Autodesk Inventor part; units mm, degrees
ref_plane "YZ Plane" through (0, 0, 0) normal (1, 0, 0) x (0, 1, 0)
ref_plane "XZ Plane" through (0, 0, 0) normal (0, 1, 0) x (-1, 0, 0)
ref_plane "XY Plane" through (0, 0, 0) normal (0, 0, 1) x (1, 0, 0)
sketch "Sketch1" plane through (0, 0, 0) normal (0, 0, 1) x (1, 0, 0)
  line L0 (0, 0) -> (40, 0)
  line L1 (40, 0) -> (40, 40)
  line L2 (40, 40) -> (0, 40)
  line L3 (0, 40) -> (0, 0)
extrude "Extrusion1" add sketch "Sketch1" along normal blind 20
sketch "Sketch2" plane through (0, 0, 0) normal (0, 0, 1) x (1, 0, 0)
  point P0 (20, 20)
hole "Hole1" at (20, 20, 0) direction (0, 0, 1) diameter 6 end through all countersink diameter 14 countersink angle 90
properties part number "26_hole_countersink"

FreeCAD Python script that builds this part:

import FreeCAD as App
import Part
import Sketcher

doc = App.newDocument("Part")
params = doc.addObject("Spreadsheet::Sheet", "Params")
for row, (alias, value) in enumerate([
    ("sketch1_width", "40 mm"),
    ("pad1_length", "20 mm"),
    ("sketch2_diameter", "6 mm"),
    ("hole_diameter", "6 mm"),
    ("hole_csink_diameter", "14 mm"),
], start=1):
    params.set(f"A{row}", alias)
    params.set(f"B{row}", "=" + value)
    params.setAlias(f"B{row}", alias)

body = doc.addObject("PartDesign::Body", "Body")

# Sketch on XY plane
sketch1 = body.newObject("Sketcher::SketchObject", "Sketch")
sketch1.AttachmentSupport = (doc.getObject("XY_Plane"), [""])
sketch1.MapMode = "FlatFace"
sketch1.addGeometry(Part.LineSegment(App.Vector(0, 40, 0), App.Vector(0, 0, 0)), False)
sketch1.addGeometry(Part.LineSegment(App.Vector(0, 0, 0), App.Vector(40, 0, 0)), False)
sketch1.addGeometry(Part.LineSegment(App.Vector(40, 0, 0), App.Vector(40, 40, 0)), False)
sketch1.addGeometry(Part.LineSegment(App.Vector(40, 40, 0), App.Vector(0, 40, 0)), False)
sketch1.addConstraint(Sketcher.Constraint("Coincident", 0, 2, 1, 1))
sketch1.addConstraint(Sketcher.Constraint("Coincident", 1, 2, 2, 1))
sketch1.addConstraint(Sketcher.Constraint("Coincident", 2, 2, 3, 1))
sketch1.addConstraint(Sketcher.Constraint("Coincident", 3, 2, 0, 1))
sketch1.addConstraint(Sketcher.Constraint("Vertical", 0))
sketch1.addConstraint(Sketcher.Constraint("Horizontal", 1))
sketch1.addConstraint(Sketcher.Constraint("Vertical", 2))
sketch1.addConstraint(Sketcher.Constraint("Horizontal", 3))
sketch1.addConstraint(Sketcher.Constraint("Coincident", 0, 2, -1, 1))
sketch1.addConstraint(Sketcher.Constraint("Equal", 3, 0))
sketch1.addConstraint(Sketcher.Constraint("DistanceX", 1, 1, 1, 2, 40.0))
sketch1.setExpression("Constraints[10]", "Params.sketch1_width")
pad1 = body.newObject("PartDesign::Pad", "Pad")
pad1.Profile = sketch1
pad1.setExpression("Length", "Params.pad1_length")

# Sketch on XY plane
sketch2 = body.newObject("Sketcher::SketchObject", "Sketch001")
sketch2.AttachmentSupport = (doc.getObject("XY_Plane"), [""])
sketch2.MapMode = "FlatFace"
sketch2.addGeometry(Part.Circle(App.Vector(20, 20, 0), App.Vector(0, 0, 1), 3), False)
sketch2.addConstraint(Sketcher.Constraint("Diameter", 0, 6.0))
sketch2.addConstraint(Sketcher.Constraint("DistanceX", -1, 1, 0, 3, 20.0))
sketch2.addConstraint(Sketcher.Constraint("DistanceY", -1, 1, 0, 3, 20.0))
sketch2.setExpression("Constraints[0]", "Params.sketch2_diameter")
doc.recompute()
hole = body.newObject("PartDesign::Hole", "Hole")
hole.Profile = sketch2
hole.ThreadType = "None"
hole.setExpression("Diameter", "Params.hole_diameter")
hole.DepthType = "ThroughAll"
hole.HoleCutType = "Countersink"
hole.setExpression("HoleCutDiameter", "Params.hole_csink_diameter")
hole.HoleCutCountersinkAngle = 90
hole.Reversed = True

doc.recompute()
